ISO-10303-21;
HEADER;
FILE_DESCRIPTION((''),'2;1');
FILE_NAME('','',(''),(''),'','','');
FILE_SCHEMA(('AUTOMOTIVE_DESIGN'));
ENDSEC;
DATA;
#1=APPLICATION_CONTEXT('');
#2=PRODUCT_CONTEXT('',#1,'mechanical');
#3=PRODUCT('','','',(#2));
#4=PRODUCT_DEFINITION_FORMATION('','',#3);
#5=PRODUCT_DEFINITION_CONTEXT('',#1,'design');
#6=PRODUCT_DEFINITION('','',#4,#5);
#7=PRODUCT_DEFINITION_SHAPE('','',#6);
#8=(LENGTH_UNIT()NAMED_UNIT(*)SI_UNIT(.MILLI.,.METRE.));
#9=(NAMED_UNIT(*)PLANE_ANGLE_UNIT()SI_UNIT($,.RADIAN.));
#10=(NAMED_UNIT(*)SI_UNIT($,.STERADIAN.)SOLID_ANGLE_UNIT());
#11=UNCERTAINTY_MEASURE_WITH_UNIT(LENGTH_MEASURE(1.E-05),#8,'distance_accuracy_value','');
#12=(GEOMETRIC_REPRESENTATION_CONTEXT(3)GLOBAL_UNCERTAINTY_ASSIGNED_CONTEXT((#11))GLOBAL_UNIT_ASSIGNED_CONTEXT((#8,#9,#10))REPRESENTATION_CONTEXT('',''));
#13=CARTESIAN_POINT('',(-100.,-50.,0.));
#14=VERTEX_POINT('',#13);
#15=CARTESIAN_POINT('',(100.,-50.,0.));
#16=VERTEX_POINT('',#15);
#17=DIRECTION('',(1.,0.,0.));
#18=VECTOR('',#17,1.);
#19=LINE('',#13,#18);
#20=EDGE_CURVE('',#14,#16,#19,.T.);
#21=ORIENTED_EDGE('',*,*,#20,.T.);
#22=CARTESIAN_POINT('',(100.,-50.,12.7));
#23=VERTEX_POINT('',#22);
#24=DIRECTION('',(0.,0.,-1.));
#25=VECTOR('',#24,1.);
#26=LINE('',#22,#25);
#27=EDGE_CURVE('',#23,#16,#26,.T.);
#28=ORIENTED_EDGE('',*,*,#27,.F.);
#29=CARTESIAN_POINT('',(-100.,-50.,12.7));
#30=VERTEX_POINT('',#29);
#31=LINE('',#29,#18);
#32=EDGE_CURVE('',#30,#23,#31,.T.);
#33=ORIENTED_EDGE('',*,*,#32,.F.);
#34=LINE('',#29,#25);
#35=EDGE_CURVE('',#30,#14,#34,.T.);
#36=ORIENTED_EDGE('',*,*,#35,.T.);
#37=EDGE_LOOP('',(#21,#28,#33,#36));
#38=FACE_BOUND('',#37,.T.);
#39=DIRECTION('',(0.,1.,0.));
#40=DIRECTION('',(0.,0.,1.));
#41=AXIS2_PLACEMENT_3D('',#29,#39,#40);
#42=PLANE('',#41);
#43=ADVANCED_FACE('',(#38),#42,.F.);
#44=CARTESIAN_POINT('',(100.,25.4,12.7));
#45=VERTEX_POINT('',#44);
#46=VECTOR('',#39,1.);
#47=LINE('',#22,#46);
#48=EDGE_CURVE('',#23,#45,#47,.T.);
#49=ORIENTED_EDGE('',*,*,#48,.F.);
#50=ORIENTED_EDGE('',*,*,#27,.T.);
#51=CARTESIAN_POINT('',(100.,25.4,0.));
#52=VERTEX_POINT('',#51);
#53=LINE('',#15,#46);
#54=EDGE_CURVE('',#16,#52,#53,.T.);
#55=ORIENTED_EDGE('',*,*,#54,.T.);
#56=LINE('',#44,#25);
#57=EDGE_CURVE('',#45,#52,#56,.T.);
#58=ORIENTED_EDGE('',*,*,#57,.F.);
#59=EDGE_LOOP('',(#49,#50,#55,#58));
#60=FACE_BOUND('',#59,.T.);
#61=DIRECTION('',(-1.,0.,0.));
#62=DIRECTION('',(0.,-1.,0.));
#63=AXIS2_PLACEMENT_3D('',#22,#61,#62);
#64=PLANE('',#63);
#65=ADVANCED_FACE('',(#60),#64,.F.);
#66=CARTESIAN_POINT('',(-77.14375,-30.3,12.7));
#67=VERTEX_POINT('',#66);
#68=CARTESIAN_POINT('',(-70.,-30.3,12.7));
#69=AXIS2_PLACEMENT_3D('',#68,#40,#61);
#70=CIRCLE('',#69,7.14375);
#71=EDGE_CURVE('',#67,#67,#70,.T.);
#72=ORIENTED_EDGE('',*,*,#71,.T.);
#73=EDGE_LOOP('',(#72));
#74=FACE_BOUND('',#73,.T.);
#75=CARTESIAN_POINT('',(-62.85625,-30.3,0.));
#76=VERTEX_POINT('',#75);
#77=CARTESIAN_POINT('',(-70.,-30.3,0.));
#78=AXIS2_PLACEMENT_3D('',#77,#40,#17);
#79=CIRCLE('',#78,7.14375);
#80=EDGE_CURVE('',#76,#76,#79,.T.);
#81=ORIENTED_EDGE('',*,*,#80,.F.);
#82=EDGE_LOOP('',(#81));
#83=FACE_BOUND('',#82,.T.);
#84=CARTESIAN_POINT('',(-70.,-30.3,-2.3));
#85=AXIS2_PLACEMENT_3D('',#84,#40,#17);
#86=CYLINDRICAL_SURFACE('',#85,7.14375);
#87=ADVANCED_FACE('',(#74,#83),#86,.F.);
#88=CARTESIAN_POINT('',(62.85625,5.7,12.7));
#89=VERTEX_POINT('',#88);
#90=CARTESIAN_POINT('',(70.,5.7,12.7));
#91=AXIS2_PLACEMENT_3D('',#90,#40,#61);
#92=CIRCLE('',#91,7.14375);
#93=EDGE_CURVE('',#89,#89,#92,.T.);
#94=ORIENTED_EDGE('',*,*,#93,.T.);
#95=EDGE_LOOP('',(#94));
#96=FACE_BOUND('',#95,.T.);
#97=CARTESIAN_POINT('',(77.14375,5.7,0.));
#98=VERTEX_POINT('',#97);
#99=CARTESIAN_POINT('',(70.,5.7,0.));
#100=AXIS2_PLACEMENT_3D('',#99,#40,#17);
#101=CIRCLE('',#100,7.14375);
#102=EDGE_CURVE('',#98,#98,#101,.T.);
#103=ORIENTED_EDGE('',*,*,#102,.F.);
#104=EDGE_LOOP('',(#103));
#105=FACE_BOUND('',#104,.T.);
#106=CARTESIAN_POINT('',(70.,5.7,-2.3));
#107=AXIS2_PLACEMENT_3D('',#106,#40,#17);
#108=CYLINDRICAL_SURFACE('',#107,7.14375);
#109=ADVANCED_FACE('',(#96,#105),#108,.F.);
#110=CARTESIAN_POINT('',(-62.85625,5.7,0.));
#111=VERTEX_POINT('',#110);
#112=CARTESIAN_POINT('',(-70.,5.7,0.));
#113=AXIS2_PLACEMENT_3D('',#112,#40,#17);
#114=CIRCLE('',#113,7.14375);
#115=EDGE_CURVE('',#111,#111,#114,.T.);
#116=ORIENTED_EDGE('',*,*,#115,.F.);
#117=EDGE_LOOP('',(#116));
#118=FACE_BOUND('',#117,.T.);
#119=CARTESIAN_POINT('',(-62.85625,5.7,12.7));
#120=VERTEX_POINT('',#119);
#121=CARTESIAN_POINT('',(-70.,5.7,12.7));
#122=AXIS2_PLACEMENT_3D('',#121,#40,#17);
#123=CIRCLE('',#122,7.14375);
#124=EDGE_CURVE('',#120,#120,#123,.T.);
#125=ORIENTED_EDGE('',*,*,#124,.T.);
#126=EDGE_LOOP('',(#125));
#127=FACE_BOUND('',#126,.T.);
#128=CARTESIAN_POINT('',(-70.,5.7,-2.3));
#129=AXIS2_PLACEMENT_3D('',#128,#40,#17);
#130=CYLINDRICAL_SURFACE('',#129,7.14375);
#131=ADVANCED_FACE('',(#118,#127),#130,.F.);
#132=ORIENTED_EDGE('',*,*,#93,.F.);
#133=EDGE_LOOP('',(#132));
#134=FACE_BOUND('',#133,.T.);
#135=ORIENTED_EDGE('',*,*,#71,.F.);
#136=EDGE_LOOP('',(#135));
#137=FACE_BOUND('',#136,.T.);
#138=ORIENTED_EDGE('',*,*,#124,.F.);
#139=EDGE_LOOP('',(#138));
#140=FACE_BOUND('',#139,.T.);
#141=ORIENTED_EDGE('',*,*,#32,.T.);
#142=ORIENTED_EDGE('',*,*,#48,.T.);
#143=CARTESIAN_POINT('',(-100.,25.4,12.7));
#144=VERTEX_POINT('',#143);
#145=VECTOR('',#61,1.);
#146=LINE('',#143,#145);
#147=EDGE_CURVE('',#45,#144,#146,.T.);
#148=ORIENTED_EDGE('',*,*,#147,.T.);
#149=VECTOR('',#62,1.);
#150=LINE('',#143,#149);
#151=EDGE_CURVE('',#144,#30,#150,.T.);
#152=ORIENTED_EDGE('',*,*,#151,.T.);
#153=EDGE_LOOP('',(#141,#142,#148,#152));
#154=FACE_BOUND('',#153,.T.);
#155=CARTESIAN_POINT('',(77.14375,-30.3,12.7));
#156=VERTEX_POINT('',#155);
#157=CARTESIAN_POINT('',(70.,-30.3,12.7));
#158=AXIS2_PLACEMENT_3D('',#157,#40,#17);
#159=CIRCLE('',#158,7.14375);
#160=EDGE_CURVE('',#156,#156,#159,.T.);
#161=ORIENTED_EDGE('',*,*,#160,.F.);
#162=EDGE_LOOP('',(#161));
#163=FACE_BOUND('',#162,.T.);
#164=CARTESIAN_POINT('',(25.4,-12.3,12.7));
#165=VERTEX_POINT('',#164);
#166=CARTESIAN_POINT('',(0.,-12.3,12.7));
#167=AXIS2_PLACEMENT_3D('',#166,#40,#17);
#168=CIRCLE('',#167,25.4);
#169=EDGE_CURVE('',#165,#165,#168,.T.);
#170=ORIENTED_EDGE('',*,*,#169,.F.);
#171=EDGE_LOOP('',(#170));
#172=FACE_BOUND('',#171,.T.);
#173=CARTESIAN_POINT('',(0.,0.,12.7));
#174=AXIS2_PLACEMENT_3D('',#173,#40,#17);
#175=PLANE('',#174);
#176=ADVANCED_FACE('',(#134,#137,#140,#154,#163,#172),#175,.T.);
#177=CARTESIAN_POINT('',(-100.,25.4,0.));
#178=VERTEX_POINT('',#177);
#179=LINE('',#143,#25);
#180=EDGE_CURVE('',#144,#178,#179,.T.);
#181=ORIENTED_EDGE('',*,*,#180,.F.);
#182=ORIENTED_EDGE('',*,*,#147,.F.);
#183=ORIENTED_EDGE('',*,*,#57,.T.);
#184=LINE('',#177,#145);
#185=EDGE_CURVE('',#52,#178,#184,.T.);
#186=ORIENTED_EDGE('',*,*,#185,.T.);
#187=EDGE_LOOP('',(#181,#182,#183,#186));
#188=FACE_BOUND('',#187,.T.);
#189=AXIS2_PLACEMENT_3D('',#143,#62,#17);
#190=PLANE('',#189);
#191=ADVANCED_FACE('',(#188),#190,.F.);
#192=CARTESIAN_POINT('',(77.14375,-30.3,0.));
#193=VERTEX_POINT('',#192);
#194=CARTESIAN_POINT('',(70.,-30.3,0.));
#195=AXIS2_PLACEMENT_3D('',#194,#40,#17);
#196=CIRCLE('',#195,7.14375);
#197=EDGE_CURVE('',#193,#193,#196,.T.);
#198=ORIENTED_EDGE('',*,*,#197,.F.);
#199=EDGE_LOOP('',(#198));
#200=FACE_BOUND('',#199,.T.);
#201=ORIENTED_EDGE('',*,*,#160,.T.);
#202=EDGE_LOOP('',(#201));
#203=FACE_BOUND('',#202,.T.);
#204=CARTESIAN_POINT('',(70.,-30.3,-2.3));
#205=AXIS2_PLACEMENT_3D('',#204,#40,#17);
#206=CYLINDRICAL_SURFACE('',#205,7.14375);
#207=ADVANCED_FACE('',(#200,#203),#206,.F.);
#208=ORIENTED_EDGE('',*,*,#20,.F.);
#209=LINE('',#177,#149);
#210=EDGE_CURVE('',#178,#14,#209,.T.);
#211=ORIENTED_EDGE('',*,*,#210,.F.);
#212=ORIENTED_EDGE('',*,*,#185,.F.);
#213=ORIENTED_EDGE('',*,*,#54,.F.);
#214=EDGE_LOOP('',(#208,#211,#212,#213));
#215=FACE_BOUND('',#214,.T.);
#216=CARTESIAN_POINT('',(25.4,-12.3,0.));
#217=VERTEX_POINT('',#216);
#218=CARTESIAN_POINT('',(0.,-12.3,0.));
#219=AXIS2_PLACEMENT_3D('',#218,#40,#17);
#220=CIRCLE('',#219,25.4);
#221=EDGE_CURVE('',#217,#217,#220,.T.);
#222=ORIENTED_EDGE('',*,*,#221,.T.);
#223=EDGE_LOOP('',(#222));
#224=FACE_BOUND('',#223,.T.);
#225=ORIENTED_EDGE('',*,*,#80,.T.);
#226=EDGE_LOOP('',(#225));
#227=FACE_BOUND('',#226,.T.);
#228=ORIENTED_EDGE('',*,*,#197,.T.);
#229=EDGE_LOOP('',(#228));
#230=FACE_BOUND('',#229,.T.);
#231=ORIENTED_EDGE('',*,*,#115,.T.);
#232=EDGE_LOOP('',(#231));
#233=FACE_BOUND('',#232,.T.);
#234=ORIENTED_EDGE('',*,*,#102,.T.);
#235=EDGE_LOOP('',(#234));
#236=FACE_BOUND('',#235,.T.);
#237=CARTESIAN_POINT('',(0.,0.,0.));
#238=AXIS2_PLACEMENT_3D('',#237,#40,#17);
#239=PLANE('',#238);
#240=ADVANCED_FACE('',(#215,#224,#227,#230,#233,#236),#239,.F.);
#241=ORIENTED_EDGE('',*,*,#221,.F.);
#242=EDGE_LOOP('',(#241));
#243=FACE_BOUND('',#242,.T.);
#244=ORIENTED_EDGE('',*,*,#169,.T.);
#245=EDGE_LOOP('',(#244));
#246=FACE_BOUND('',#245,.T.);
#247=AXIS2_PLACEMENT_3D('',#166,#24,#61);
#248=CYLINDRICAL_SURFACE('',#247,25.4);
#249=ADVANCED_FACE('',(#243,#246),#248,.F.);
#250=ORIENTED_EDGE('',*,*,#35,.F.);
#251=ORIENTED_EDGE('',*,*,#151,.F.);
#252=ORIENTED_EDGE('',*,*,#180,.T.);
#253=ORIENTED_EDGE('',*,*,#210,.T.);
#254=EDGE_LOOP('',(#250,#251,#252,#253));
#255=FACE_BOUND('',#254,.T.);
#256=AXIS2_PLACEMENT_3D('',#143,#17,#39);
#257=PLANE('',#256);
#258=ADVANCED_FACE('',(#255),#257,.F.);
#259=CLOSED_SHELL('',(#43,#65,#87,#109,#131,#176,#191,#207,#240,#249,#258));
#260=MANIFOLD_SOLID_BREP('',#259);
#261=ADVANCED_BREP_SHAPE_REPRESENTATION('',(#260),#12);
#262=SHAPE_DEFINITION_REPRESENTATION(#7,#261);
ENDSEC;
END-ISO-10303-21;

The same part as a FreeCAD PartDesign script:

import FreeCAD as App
import Part
import Sketcher
from FreeCAD import Vector

doc = App.newDocument("Part")
body = doc.addObject("PartDesign::Body", "Body")

sketch1 = body.newObject("Sketcher::SketchObject", "Sketch")
sketch1.AttachmentSupport = (doc.getObject("XY_Plane"), [""])
sketch1.MapMode = "FlatFace"
sketch1.addGeometry(Part.LineSegment(Vector(-100, 25.4, 0), Vector(-100, -50, 0)), False)
sketch1.addGeometry(Part.LineSegment(Vector(-100, -50, 0), Vector(100, -50, 0)), False)
sketch1.addGeometry(Part.LineSegment(Vector(100, -50, 0), Vector(100, 25.4, 0)), False)
sketch1.addGeometry(Part.LineSegment(Vector(100, 25.4, 0), Vector(-100, 25.4, 0)), False)
sketch1.addGeometry(Part.Circle(Vector(0, -12.3, 0), Vector(0, 0, 1), 25.4), False)
sketch1.addConstraint(Sketcher.Constraint("Coincident", 0, 2, 1, 1))
sketch1.addConstraint(Sketcher.Constraint("Coincident", 1, 2, 2, 1))
sketch1.addConstraint(Sketcher.Constraint("Coincident", 2, 2, 3, 1))
sketch1.addConstraint(Sketcher.Constraint("Coincident", 3, 2, 0, 1))
sketch1.addConstraint(Sketcher.Constraint("Vertical", 0))
sketch1.addConstraint(Sketcher.Constraint("Horizontal", 1))
sketch1.addConstraint(Sketcher.Constraint("Vertical", 2))
sketch1.addConstraint(Sketcher.Constraint("Horizontal", 3))
sketch1.addConstraint(Sketcher.Constraint("PointOnObject", 4, 3, -2))
sketch1.addConstraint(Sketcher.Constraint("Diameter", 4, 50.8))
sketch1.addConstraint(Sketcher.Constraint("DistanceX", 1, 1, 1, 2, 200.0))
sketch1.addConstraint(Sketcher.Constraint("DistanceY", 0, 2, 0, 1, 75.4))
sketch1.addConstraint(Sketcher.Constraint("DistanceX", 0, 2, -1, 1, 100.0))
sketch1.addConstraint(Sketcher.Constraint("DistanceY", 0, 2, -1, 1, 50.0))
sketch1.addConstraint(Sketcher.Constraint("DistanceY", 4, 3, -1, 1, 12.3))
pad1 = body.newObject("PartDesign::Pad", "Pad")
pad1.Profile = sketch1
pad1.Length = 12.7

sketch2 = body.newObject("Sketcher::SketchObject", "Sketch001")
sketch2.AttachmentSupport = (doc.getObject("XY_Plane"), [""])
sketch2.MapMode = "FlatFace"
sketch2.AttachmentOffset = App.Placement(Vector(0, 0, 12.7), App.Rotation())
sketch2.addGeometry(Part.Circle(Vector(-70, 5.7, 0), Vector(0, 0, 1), 7.14375), False)
sketch2.addGeometry(Part.Circle(Vector(-70, -30.3, 0), Vector(0, 0, 1), 7.14375), False)
sketch2.addGeometry(Part.Circle(Vector(70, -30.3, 0), Vector(0, 0, 1), 7.14375), False)
sketch2.addGeometry(Part.Circle(Vector(70, 5.7, 0), Vector(0, 0, 1), 7.14375), False)
sketch2.addConstraint(Sketcher.Constraint("Equal", 0, 1))
sketch2.addConstraint(Sketcher.Constraint("Equal", 1, 2))
sketch2.addConstraint(Sketcher.Constraint("Equal", 2, 3))
sketch2.addConstraint(Sketcher.Constraint("Symmetric", 1, 3, 2, 3, -2))
sketch2.addConstraint(Sketcher.Constraint("Symmetric", 0, 3, 3, 3, -2))
sketch2.addConstraint(Sketcher.Constraint("Vertical", 0, 3, 1, 3))
sketch2.addConstraint(Sketcher.Constraint("DistanceX", 0, 3, -1, 1, 70.0))
sketch2.addConstraint(Sketcher.Constraint("DistanceY", 1, 3, 0, 3, 36.0))
sketch2.addConstraint(Sketcher.Constraint("Diameter", 0, 14.2875))
sketch2.addConstraint(Sketcher.Constraint("DistanceY", -1, 1, 0, 3, 5.7))
pocket1 = body.newObject("PartDesign::Pocket", "Pocket")
pocket1.Profile = sketch2
pocket1.Length = 15

doc.recompute()
